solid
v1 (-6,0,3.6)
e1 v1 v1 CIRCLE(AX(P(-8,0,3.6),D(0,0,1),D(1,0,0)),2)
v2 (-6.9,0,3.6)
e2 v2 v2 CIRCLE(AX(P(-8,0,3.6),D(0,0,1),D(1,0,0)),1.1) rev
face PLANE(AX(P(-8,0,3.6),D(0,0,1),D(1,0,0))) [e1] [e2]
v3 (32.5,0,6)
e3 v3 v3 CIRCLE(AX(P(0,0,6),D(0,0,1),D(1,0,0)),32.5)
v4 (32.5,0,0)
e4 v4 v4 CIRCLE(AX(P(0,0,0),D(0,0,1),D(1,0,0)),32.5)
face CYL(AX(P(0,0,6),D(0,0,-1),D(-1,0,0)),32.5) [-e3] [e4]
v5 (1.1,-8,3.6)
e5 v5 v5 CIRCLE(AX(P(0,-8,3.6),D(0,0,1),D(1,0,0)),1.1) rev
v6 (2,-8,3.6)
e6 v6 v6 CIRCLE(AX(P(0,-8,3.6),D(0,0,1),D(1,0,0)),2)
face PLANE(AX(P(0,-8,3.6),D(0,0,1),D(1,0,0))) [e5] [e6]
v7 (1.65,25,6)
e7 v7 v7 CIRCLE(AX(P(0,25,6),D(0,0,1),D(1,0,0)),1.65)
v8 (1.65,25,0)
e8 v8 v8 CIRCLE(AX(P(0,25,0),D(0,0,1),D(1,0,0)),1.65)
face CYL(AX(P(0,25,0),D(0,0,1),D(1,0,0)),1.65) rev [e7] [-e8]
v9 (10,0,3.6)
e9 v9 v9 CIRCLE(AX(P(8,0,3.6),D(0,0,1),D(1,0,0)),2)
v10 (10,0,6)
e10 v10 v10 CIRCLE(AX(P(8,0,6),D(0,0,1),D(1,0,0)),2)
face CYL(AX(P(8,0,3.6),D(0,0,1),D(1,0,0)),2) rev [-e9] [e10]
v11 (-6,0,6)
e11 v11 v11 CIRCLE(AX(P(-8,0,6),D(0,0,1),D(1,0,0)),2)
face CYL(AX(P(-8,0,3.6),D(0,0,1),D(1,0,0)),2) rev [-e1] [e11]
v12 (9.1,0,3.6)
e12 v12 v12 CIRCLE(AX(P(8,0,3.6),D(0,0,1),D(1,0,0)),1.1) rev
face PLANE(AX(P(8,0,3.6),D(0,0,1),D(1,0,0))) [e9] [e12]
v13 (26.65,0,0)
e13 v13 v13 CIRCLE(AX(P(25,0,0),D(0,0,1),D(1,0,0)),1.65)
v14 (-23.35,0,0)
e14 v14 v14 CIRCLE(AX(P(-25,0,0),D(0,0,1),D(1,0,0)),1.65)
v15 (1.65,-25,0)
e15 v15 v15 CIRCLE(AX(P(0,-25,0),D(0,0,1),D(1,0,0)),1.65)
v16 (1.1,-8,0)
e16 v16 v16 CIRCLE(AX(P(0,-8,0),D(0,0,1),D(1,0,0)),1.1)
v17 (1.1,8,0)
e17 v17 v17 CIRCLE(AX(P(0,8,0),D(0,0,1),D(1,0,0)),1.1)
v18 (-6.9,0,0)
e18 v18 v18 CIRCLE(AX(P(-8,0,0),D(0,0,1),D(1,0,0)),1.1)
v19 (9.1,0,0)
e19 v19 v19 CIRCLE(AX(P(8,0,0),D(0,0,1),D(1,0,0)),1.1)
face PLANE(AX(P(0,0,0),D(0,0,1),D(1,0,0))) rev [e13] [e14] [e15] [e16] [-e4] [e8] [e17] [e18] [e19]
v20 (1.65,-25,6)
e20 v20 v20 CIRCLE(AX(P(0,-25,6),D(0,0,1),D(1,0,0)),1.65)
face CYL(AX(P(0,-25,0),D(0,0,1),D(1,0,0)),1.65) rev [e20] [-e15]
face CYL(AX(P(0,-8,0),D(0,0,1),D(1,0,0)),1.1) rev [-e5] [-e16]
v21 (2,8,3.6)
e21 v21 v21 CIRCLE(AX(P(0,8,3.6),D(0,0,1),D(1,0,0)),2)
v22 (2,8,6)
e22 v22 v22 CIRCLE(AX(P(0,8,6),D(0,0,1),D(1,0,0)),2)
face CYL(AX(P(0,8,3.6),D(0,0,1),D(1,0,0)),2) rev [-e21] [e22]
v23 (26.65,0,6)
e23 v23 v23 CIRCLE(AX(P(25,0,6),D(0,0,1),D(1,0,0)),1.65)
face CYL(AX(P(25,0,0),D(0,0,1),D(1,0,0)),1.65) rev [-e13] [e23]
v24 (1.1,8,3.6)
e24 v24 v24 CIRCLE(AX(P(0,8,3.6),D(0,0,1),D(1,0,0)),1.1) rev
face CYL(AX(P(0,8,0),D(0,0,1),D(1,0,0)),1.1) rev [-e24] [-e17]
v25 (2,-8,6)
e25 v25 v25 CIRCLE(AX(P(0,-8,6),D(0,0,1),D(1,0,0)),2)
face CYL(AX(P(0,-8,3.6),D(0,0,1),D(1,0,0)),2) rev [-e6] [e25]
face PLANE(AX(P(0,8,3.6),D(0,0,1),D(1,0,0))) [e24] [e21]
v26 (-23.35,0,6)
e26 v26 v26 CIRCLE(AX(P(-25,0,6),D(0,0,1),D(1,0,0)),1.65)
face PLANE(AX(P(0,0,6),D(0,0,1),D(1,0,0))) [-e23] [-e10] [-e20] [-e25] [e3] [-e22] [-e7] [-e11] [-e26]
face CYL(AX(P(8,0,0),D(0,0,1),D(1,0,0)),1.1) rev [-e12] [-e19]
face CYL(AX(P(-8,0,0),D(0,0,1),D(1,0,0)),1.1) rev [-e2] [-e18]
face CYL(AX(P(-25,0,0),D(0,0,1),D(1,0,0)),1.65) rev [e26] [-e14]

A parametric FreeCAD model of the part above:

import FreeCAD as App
import Part
import Sketcher

doc = App.newDocument("Part")
body = doc.addObject("PartDesign::Body", "Body")

sketch1 = body.newObject("Sketcher::SketchObject", "Sketch")
sketch1.AttachmentSupport = (doc.getObject("XY_Plane"), [""])
sketch1.MapMode = "FlatFace"
sketch1.addGeometry(Part.Circle(App.Vector(0, 0, 0), App.Vector(0, 0, 1), 32), False)
sketch1.addConstraint([
    Sketcher.Constraint("Coincident", 0, 3, -1, 1),
    Sketcher.Constraint("Diameter", 0, 65.0),
])
pad1 = body.newObject("PartDesign::Pad", "Pad")
pad1.Profile = sketch1
pad1.Length = 6

sketch2 = body.newObject("Sketcher::SketchObject", "Sketch001")
sketch2.AttachmentSupport = (doc.getObject("XY_Plane"), [""])
sketch2.MapMode = "FlatFace"
sketch2.AttachmentOffset = App.Placement(App.Vector(0, 0, 6), App.Rotation())
sketch2.addGeometry([
    Part.Circle(App.Vector(8, 0, 0), App.Vector(0, 0, 1), 1.1),
    Part.Circle(App.Vector(-8, 0, 0), App.Vector(0, 0, 1), 1.1),
    Part.Circle(App.Vector(0, -8, 0), App.Vector(0, 0, 1), 1.1),
    Part.Circle(App.Vector(0, 8, 0), App.Vector(0, 0, 1), 1.1),
], False)
sketch2.addConstraint([
    Sketcher.Constraint("Equal", 0, 1),
    Sketcher.Constraint("Equal", 1, 2),
    Sketcher.Constraint("Equal", 2, 3),
    Sketcher.Constraint("Symmetric", 0, 3, 1, 3, -1, 1),
    Sketcher.Constraint("Symmetric", 2, 3, 3, 3, -1, 1),
    Sketcher.Constraint("PointOnObject", 0, 3, -1),
    Sketcher.Constraint("PointOnObject", 2, 3, -2),
    Sketcher.Constraint("Diameter", 0, 2.2),
    Sketcher.Constraint("DistanceX", -1, 1, 0, 3, 8.0),
    Sketcher.Constraint("DistanceY", 2, 3, -1, 1, 8.0),
])
pocket1 = body.newObject("PartDesign::Pocket", "Pocket")
pocket1.Profile = sketch2
pocket1.Type = "ThroughAll"

sketch3 = body.newObject("Sketcher::SketchObject", "Sketch002")
sketch3.AttachmentSupport = (doc.getObject("XY_Plane"), [""])
sketch3.MapMode = "FlatFace"
sketch3.AttachmentOffset = App.Placement(App.Vector(0, 0, 6), App.Rotation())
sketch3.addGeometry([
    Part.Circle(App.Vector(8, 0, 0), App.Vector(0, 0, 1), 2),
    Part.Circle(App.Vector(-8, 0, 0), App.Vector(0, 0, 1), 2),
    Part.Circle(App.Vector(0, -8, 0), App.Vector(0, 0, 1), 2),
    Part.Circle(App.Vector(0, 8, 0), App.Vector(0, 0, 1), 2),
], False)
sketch3.addConstraint([
    Sketcher.Constraint("Equal", 0, 1),
    Sketcher.Constraint("Equal", 1, 2),
    Sketcher.Constraint("Equal", 2, 3),
    Sketcher.Constraint("Symmetric", 0, 3, 1, 3, -1, 1),
    Sketcher.Constraint("Symmetric", 2, 3, 3, 3, -1, 1),
    Sketcher.Constraint("PointOnObject", 0, 3, -1),
    Sketcher.Constraint("PointOnObject", 2, 3, -2),
    Sketcher.Constraint("Diameter", 0, 4.0),
    Sketcher.Constraint("DistanceX", -1, 1, 0, 3, 8.0),
    Sketcher.Constraint("DistanceY", 2, 3, -1, 1, 8.0),
])
pocket2 = body.newObject("PartDesign::Pocket", "Pocket001")
pocket2.Profile = sketch3
pocket2.Length = 2.4

sketch4 = body.newObject("Sketcher::SketchObject", "Sketch003")
sketch4.AttachmentSupport = (doc.getObject("XY_Plane"), [""])
sketch4.MapMode = "FlatFace"
sketch4.AttachmentOffset = App.Placement(App.Vector(0, 0, 6), App.Rotation())
sketch4.addGeometry([
    Part.Circle(App.Vector(0, 25, 0), App.Vector(0, 0, 1), 1.6),
    Part.Circle(App.Vector(25, 0, 0), App.Vector(0, 0, 1), 1.6),
    Part.Circle(App.Vector(0, -25, 0), App.Vector(0, 0, 1), 1.6),
    Part.Circle(App.Vector(-25, 0, 0), App.Vector(0, 0, 1), 1.6),
], False)
sketch4.addConstraint([
    Sketcher.Constraint("Equal", 0, 1),
    Sketcher.Constraint("Equal", 1, 2),
    Sketcher.Constraint("Equal", 2, 3),
    Sketcher.Constraint("Symmetric", 0, 3, 2, 3, -1, 1),
    Sketcher.Constraint("Symmetric", 1, 3, 3, 3, -1, 1),
    Sketcher.Constraint("PointOnObject", 0, 3, -2),
    Sketcher.Constraint("PointOnObject", 1, 3, -1),
    Sketcher.Constraint("Diameter", 0, 3.3),
    Sketcher.Constraint("DistanceY", -1, 1, 0, 3, 25.0),
    Sketcher.Constraint("DistanceX", -1, 1, 1, 3, 25.0),
])
pocket3 = body.newObject("PartDesign::Pocket", "Pocket002")
pocket3.Profile = sketch4
pocket3.Type = "ThroughAll"

doc.recompute()
